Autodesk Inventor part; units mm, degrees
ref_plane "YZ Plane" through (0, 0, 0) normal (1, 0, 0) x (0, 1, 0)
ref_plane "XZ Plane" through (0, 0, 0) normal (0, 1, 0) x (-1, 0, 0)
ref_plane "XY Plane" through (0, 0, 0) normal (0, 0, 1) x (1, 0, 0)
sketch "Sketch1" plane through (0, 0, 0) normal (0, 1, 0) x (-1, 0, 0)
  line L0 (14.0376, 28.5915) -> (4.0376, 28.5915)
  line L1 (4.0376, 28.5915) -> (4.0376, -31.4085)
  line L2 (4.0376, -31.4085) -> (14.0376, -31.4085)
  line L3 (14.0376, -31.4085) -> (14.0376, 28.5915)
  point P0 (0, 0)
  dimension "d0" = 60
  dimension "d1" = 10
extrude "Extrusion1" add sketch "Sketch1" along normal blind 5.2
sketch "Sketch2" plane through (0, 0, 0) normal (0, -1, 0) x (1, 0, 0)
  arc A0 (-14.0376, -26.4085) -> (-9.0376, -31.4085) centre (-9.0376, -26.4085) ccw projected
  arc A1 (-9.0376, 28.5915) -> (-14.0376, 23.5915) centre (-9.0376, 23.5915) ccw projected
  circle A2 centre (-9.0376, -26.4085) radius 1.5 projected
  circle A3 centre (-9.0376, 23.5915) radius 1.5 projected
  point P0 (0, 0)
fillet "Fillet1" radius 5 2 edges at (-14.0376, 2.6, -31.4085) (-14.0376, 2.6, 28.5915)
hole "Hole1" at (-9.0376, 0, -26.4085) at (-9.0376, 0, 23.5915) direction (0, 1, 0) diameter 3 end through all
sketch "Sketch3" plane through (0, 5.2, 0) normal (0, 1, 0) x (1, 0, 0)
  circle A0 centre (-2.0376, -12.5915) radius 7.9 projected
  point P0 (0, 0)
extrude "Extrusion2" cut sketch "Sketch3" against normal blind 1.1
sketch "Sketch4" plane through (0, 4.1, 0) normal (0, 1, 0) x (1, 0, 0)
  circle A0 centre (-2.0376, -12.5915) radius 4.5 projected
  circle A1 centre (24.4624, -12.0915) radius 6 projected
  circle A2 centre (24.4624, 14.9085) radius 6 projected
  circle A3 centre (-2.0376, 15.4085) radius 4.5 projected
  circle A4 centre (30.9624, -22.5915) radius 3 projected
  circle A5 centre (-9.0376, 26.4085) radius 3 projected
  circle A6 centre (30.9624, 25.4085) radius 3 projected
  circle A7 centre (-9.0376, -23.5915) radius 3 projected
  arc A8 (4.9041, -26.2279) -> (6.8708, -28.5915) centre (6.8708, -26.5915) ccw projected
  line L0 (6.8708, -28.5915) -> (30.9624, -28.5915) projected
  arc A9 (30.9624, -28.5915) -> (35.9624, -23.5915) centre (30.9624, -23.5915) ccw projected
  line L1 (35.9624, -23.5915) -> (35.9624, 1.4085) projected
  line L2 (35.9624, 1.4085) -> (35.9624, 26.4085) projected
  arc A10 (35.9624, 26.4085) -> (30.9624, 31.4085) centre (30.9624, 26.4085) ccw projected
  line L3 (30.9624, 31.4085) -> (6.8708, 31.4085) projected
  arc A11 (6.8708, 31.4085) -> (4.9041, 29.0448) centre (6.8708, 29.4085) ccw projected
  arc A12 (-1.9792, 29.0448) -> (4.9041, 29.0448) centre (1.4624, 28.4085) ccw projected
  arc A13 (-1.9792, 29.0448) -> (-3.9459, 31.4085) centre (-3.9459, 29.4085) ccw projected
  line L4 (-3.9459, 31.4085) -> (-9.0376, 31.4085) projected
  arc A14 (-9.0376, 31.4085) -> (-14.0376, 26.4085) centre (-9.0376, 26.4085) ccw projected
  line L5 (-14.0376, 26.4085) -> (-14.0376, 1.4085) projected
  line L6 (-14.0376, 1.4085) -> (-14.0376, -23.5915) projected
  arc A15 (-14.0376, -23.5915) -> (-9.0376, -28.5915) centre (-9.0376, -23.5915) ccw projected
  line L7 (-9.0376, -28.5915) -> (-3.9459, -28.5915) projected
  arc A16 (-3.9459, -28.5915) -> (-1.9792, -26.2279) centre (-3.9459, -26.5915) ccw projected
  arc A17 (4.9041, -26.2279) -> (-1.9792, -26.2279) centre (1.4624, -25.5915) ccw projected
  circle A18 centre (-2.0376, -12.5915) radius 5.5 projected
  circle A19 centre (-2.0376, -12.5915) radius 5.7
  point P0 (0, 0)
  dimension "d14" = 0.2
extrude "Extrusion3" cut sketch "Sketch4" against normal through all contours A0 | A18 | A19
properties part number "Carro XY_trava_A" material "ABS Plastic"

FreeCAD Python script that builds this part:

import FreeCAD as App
import Part
import Sketcher

V = App.Vector
Q = App.Units.Quantity


def edges_at(feature, points):
    """Names of the edges that pass closest to the given points."""
    edges = feature.Shape.Edges
    near = lambda p: min(range(len(edges)), key=lambda i: edges[i].distToShape(Part.Vertex(*p))[0])
    return sorted({f"Edge{near(p) + 1}" for p in points})


def add_polygon(sketch, points):
    """Adds a closed chain of lines whose ends are joined by coincident constraints."""
    first, n = sketch.GeometryCount, len(points)
    for a, b in zip(points, points[1:] + points[:1]):
        sketch.addGeometry(Part.LineSegment(App.Vector(*a, 0), App.Vector(*b, 0)), False)
    for i in range(n):
        sketch.addConstraint(Sketcher.Constraint("Coincident", first + i, 2, first + (i + 1) % n, 1))

doc = App.newDocument("Part")
params = doc.addObject("Spreadsheet::Sheet", "Params")
for row, (alias, value) in enumerate([
    ("sketch1_width", "10 mm"),
    ("sketch1_height", "60 mm"),
    ("pad1_length", "5.2 mm"),
    ("fillet_radius", "5 mm"),
    ("sketch2_diameter", "3 mm"),
    ("hole_diameter", "3 mm"),
    ("sketch3_diameter", "15.8 mm"),
    ("pocket1_length", "1.1 mm"),
    ("sketch4_diameter", "11.4 mm"),
], start=1):
    params.set(f"A{row}", alias)
    params.set(f"B{row}", "=" + value)
    params.setAlias(f"B{row}", alias)

body = doc.addObject("PartDesign::Body", "Body")

# Sketch on XZ plane
sketch1 = body.newObject("Sketcher::SketchObject", "Sketch")
sketch1.AttachmentSupport = (doc.getObject("XZ_Plane"), [""])
sketch1.MapMode = "FlatFace"
add_polygon(sketch1, [(-14.0376, -31.4085), (-14.0376, 28.5915), (-4.0376, 28.5915), (-4.0376, -31.4085)])  # lines 0-3
sketch1.addConstraint(Sketcher.Constraint("Vertical", 0))
sketch1.addConstraint(Sketcher.Constraint("Horizontal", 1))
sketch1.addConstraint(Sketcher.Constraint("Vertical", 2))
sketch1.addConstraint(Sketcher.Constraint("Horizontal", 3))
sketch1.addConstraint(Sketcher.Constraint("DistanceX", 1, 1, 1, 2, Q("10 mm")))
sketch1.addConstraint(Sketcher.Constraint("DistanceY", 0, 1, 0, 2, Q("60 mm")))
sketch1.addConstraint(Sketcher.Constraint("DistanceX", 0, 2, -1, 1, Q("14.0376 mm")))
sketch1.addConstraint(Sketcher.Constraint("DistanceY", -1, 1, 0, 2, Q("28.5915 mm")))
sketch1.setExpression("Constraints[8]", "Params.sketch1_width")
sketch1.setExpression("Constraints[9]", "Params.sketch1_height")
pad1 = body.newObject("PartDesign::Pad", "Pad")
pad1.Profile = sketch1
pad1.setExpression("Length", "Params.pad1_length")
pad1.Reversed = True
doc.recompute()

fillet = body.newObject("PartDesign::Fillet", "Fillet")
fillet.Base = (pad1, edges_at(pad1, [(-14.038, 2.6, -31.409), (-14.038, 2.6, 28.591)]))
fillet.setExpression("Radius", "Params.fillet_radius")

# Sketch on XZ plane
sketch2 = body.newObject("Sketcher::SketchObject", "Sketch001")
sketch2.AttachmentSupport = (doc.getObject("XZ_Plane"), [""])
sketch2.MapMode = "FlatFace"
sketch2.addGeometry(Part.Circle(V(-9.0376, -26.4085, 0), V(0, 0, 1), 1.5), False)
sketch2.addGeometry(Part.Circle(V(-9.0376, 23.5915, 0), V(0, 0, 1), 1.5), False)
sketch2.addConstraint(Sketcher.Constraint("Equal", 0, 1))
sketch2.addConstraint(Sketcher.Constraint("Vertical", 0, 3, 1, 3))
sketch2.addConstraint(Sketcher.Constraint("Diameter", 0, Q("3 mm")))
sketch2.addConstraint(Sketcher.Constraint("DistanceY", 0, 3, 1, 3, Q("50 mm")))
sketch2.addConstraint(Sketcher.Constraint("DistanceX", 0, 3, -1, 1, Q("9.0376 mm")))
sketch2.addConstraint(Sketcher.Constraint("DistanceY", 0, 3, -1, 1, Q("26.4085 mm")))
sketch2.setExpression("Constraints[2]", "Params.sketch2_diameter")
doc.recompute()
hole = body.newObject("PartDesign::Hole", "Hole")
hole.Profile = sketch2
hole.ThreadType = "None"
hole.setExpression("Diameter", "Params.hole_diameter")
hole.DepthType = "ThroughAll"

# Sketch on XZ plane
sketch3 = body.newObject("Sketcher::SketchObject", "Sketch002")
sketch3.AttachmentSupport = (doc.getObject("XZ_Plane"), [""])
sketch3.MapMode = "FlatFace"
sketch3.AttachmentOffset = App.Placement(V(0, 0, -5.2), App.Rotation())
sketch3.addGeometry(Part.Circle(V(-2.0376, 12.5915, 0), V(0, 0, 1), 7.9), False)
sketch3.addConstraint(Sketcher.Constraint("Diameter", 0, Q("15.8 mm")))
sketch3.addConstraint(Sketcher.Constraint("DistanceX", 0, 3, -1, 1, Q("2.0376 mm")))
sketch3.addConstraint(Sketcher.Constraint("DistanceY", -1, 1, 0, 3, Q("12.5915 mm")))
sketch3.setExpression("Constraints[0]", "Params.sketch3_diameter")
pocket1 = body.newObject("PartDesign::Pocket", "Pocket")
pocket1.Profile = sketch3
pocket1.setExpression("Length", "Params.pocket1_length")
pocket1.Reversed = True

# Sketch on XZ plane
sketch4 = body.newObject("Sketcher::SketchObject", "Sketch003")
sketch4.AttachmentSupport = (doc.getObject("XZ_Plane"), [""])
sketch4.MapMode = "FlatFace"
sketch4.AttachmentOffset = App.Placement(V(0, 0, -4.1), App.Rotation())
sketch4.addGeometry(Part.Circle(V(-2.0376, 12.5915, 0), V(0, 0, 1), 5.7), False)
sketch4.addConstraint(Sketcher.Constraint("Diameter", 0, Q("11.4 mm")))
sketch4.addConstraint(Sketcher.Constraint("DistanceX", 0, 3, -1, 1, Q("2.0376 mm")))
sketch4.addConstraint(Sketcher.Constraint("DistanceY", -1, 1, 0, 3, Q("12.5915 mm")))
sketch4.setExpression("Constraints[0]", "Params.sketch4_diameter")
pocket2 = body.newObject("PartDesign::Pocket", "Pocket001")
pocket2.Profile = sketch4
pocket2.Type = "ThroughAll"
pocket2.Reversed = True

doc.recompute()
